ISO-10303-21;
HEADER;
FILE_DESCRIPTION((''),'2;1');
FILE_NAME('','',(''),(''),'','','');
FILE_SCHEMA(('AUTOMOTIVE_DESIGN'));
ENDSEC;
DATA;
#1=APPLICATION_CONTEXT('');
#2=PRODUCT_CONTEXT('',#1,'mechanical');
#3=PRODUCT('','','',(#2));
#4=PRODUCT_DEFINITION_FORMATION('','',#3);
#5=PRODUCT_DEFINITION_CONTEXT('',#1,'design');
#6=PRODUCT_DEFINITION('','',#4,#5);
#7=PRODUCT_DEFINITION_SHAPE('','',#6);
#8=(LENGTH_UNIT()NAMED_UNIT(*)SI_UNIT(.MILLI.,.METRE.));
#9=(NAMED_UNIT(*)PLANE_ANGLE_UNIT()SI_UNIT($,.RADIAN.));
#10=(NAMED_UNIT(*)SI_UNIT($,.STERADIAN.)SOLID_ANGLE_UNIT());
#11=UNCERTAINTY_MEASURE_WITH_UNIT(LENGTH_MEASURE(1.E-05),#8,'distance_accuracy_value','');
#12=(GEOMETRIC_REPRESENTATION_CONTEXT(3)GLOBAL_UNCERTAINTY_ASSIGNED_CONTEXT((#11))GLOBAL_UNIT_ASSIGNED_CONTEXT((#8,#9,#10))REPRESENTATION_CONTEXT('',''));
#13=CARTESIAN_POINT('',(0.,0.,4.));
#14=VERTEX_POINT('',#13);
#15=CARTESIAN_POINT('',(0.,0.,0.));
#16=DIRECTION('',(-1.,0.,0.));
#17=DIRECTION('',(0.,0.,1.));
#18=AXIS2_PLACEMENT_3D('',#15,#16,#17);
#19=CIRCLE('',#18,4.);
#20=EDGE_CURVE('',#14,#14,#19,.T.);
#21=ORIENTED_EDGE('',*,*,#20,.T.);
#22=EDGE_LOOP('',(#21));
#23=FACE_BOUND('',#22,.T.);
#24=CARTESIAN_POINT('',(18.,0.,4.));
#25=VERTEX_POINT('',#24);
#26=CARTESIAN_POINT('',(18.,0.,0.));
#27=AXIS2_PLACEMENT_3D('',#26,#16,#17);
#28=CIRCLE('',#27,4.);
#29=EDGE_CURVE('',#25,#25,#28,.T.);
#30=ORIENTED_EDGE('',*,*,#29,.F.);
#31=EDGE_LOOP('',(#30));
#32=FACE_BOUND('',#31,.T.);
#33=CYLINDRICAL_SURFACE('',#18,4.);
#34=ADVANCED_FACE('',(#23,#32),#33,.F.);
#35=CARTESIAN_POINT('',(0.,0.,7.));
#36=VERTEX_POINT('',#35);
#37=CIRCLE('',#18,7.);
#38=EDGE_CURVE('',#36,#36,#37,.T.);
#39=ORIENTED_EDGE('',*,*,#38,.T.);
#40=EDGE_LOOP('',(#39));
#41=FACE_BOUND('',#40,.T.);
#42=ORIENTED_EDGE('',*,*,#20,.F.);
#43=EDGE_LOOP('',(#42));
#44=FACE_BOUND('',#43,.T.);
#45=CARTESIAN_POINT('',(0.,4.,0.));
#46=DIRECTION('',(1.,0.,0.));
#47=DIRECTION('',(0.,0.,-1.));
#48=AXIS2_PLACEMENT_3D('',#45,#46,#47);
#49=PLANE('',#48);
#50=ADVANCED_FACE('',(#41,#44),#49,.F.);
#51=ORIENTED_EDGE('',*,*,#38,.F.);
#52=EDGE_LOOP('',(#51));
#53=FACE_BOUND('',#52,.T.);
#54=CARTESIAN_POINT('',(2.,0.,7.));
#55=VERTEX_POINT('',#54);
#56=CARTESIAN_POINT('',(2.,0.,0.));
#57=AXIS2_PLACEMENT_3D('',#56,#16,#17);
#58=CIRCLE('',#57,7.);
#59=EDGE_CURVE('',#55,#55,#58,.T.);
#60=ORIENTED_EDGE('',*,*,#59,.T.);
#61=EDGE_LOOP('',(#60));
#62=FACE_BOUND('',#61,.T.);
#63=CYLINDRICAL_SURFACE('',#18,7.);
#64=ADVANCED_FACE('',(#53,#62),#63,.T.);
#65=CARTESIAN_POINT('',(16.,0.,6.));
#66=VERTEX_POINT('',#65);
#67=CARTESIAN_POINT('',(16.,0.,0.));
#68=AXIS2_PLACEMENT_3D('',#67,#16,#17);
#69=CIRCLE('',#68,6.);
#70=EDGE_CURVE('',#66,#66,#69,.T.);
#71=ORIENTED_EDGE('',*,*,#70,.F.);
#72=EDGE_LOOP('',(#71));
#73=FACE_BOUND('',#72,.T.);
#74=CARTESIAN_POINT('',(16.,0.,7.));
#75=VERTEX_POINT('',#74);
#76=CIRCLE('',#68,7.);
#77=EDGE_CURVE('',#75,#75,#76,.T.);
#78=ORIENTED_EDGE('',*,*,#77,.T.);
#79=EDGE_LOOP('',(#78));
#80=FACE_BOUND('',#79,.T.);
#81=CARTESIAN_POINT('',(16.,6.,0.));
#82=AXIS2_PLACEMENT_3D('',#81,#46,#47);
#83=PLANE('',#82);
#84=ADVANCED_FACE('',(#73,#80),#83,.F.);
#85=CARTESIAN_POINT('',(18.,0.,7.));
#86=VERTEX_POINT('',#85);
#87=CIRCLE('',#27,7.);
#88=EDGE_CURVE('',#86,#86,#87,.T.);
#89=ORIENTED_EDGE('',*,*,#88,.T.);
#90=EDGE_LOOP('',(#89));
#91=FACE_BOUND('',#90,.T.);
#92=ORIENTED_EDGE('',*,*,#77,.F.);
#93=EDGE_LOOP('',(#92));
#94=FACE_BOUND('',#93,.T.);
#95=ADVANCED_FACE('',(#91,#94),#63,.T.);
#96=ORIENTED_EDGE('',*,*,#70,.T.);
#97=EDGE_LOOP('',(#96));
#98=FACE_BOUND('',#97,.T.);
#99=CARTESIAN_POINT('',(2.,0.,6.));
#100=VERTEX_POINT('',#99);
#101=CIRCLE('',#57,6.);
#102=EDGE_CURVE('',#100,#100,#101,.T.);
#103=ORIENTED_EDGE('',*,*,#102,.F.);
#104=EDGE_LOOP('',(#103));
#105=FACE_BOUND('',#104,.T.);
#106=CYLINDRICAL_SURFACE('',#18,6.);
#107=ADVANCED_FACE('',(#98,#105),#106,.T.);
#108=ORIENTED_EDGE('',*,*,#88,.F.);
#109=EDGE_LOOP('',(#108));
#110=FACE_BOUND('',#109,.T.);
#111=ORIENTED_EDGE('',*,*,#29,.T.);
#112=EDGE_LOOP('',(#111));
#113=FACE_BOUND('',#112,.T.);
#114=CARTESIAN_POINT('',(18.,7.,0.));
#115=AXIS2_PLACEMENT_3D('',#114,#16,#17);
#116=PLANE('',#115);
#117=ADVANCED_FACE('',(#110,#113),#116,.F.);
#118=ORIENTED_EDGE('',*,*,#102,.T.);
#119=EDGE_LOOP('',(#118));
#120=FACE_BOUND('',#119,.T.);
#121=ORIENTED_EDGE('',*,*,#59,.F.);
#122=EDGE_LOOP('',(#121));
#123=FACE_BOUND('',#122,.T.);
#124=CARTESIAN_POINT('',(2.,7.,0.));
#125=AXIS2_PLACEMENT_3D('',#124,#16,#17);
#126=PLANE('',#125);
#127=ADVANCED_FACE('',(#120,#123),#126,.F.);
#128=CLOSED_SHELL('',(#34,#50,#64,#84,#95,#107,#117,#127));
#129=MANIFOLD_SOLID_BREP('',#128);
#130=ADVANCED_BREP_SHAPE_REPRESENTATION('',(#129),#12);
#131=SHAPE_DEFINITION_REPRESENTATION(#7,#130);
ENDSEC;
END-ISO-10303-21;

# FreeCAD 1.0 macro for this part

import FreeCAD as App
import Part
import Sketcher

V = App.Vector


def add_polygon(sketch, points):
    """Adds a closed chain of lines whose ends are joined by coincident constraints."""
    first, n = sketch.GeometryCount, len(points)
    for a, b in zip(points, points[1:] + points[:1]):
        sketch.addGeometry(Part.LineSegment(App.Vector(*a, 0), App.Vector(*b, 0)), False)
    for i in range(n):
        sketch.addConstraint(Sketcher.Constraint("Coincident", first + i, 2, first + (i + 1) % n, 1))

doc = App.newDocument("Part")
body = doc.addObject("PartDesign::Body", "Body")

sketch1 = body.newObject("Sketcher::SketchObject", "Sketch")
sketch1.AttachmentSupport = (doc.getObject("XY_Plane"), [""])
sketch1.MapMode = "FlatFace"
add_polygon(sketch1, [(0, 7), (0, 4), (18, 4), (18, 7), (16, 7), (16, 6), (2, 6), (2, 7)])
sketch1.addConstraint([
    Sketcher.Constraint("Vertical", 0),
    Sketcher.Constraint("Horizontal", 1),
    Sketcher.Constraint("Vertical", 2),
    Sketcher.Constraint("Horizontal", 3),
    Sketcher.Constraint("Vertical", 4),
    Sketcher.Constraint("Horizontal", 5),
    Sketcher.Constraint("Vertical", 6),
    Sketcher.Constraint("Horizontal", 7),
    Sketcher.Constraint("PointOnObject", 0, 2, -2),
    Sketcher.Constraint("Horizontal", 3, 2, 6, 2),
    Sketcher.Constraint("Equal", 3, 7),
    Sketcher.Constraint("DistanceX", 1, 1, 1, 2, 18.0),
    Sketcher.Constraint("DistanceX", 3, 2, 3, 1, 2.0),
    Sketcher.Constraint("DistanceY", 0, 2, 0, 1, 3.0),
    Sketcher.Constraint("DistanceY", 4, 2, 4, 1, 1.0),
    Sketcher.Constraint("DistanceY", -1, 1, 0, 2, 4.0),
])
revolution = body.newObject("PartDesign::Revolution", "Revolution")
revolution.Profile = sketch1
revolution.ReferenceAxis = (sketch1, ["H_Axis"])
revolution.Angle = 360

doc.recompute()
